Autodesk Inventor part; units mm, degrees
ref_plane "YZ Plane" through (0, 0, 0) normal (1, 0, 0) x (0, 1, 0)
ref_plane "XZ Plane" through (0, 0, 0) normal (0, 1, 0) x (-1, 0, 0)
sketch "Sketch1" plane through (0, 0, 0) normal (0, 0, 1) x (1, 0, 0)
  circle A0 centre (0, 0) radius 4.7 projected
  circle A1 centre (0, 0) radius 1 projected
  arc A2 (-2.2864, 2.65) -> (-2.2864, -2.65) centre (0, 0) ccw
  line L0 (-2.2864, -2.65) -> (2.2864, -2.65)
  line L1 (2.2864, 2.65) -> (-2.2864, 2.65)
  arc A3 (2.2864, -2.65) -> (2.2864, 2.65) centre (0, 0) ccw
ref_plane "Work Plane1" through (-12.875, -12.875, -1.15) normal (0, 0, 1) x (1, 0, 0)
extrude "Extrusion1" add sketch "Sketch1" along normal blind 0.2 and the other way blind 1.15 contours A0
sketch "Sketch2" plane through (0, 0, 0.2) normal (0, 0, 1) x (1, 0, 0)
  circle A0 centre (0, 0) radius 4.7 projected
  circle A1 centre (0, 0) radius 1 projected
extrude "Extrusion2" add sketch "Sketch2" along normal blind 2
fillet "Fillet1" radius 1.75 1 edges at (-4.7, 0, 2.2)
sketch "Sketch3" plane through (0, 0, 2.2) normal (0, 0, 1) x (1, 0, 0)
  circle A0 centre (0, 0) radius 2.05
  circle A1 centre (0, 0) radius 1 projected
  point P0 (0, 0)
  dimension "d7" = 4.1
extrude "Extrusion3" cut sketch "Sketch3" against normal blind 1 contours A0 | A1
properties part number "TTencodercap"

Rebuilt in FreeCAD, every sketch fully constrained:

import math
import FreeCAD as App
import Part
import Sketcher
from FreeCAD import Vector
Q = App.Units.Quantity


def edges_at(feature, points):
    """Names of the edges that pass closest to the given points."""
    edges = feature.Shape.Edges
    near = lambda p: min(range(len(edges)), key=lambda i: edges[i].distToShape(Part.Vertex(*p))[0])
    return sorted({f"Edge{near(p) + 1}" for p in points})

doc = App.newDocument("Part")
body = doc.addObject("PartDesign::Body", "Body")

sketch1 = body.newObject("Sketcher::SketchObject", "Sketch")
sketch1.AttachmentSupport = (doc.getObject("XY_Plane"), [""])
sketch1.MapMode = "FlatFace"
sketch1.addGeometry([
    Part.Circle(Vector(0, 0, 0), Vector(0, 0, 1), 4.7),
    Part.ArcOfCircle(Part.Circle(Vector(0, 0, 0), Vector(0, 0, 1), 3.5), math.radians(131), math.radians(229)),
    Part.LineSegment(Vector(-2.3, 2.6, 0), Vector(2.3, 2.6, 0)),
    Part.ArcOfCircle(Part.Circle(Vector(0, 0, 0), Vector(0, 0, 1), 3.5), math.radians(-49), math.radians(49)),
    Part.LineSegment(Vector(2.3, -2.6, 0), Vector(-2.3, -2.6, 0)),
], False)
sketch1.addConstraint([
    Sketcher.Constraint("Coincident", 1, 1, 2, 1),
    Sketcher.Constraint("Coincident", 2, 2, 3, 2),
    Sketcher.Constraint("Coincident", 3, 1, 4, 1),
    Sketcher.Constraint("Coincident", 4, 2, 1, 2),
    Sketcher.Constraint("Horizontal", 2),
    Sketcher.Constraint("Horizontal", 4),
    Sketcher.Constraint("Coincident", 0, 3, -1, 1),
    Sketcher.Constraint("Coincident", 1, 3, -1, 1),
    Sketcher.Constraint("Coincident", 3, 3, -1, 1),
    Sketcher.Constraint("Equal", 1, 3),
    Sketcher.Constraint("Vertical", 2, 2, 3, 1),
    Sketcher.Constraint("Diameter", 0, Q("9.4 mm")),
    Sketcher.Constraint("Radius", 1, Q("3.5 mm")),
    Sketcher.Constraint("DistanceY", 3, 1, 2, 2, Q("5.3 mm")),
])
pad1 = body.newObject("PartDesign::Pad", "Pad")
pad1.Profile = sketch1
pad1.Type = "TwoLengths"
pad1.Length = 0.2
pad1.Length2 = 1.15

sketch2 = body.newObject("Sketcher::SketchObject", "Sketch001")
sketch2.AttachmentSupport = (doc.getObject("XY_Plane"), [""])
sketch2.MapMode = "FlatFace"
sketch2.AttachmentOffset = App.Placement(Vector(0, 0, 0.2), App.Rotation())
sketch2.addGeometry([
    Part.Circle(Vector(0, 0, 0), Vector(0, 0, 1), 4.7),
    Part.Circle(Vector(0, 0, 0), Vector(0, 0, 1), 1),
], False)
sketch2.addConstraint([
    Sketcher.Constraint("Coincident", 0, 3, -1, 1),
    Sketcher.Constraint("Coincident", 1, 3, -1, 1),
    Sketcher.Constraint("Diameter", 1, Q("2 mm")),
    Sketcher.Constraint("Diameter", 0, Q("9.4 mm")),
])
pad2 = body.newObject("PartDesign::Pad", "Pad001")
pad2.Profile = sketch2
pad2.Length = 2
doc.recompute()

fillet = body.newObject("PartDesign::Fillet", "Fillet")
fillet.Base = (pad2, edges_at(pad2, [(-4.7, 0, 2.2)]))
fillet.Radius = 1.75

sketch3 = body.newObject("Sketcher::SketchObject", "Sketch002")
sketch3.AttachmentSupport = (doc.getObject("XY_Plane"), [""])
sketch3.MapMode = "FlatFace"
sketch3.AttachmentOffset = App.Placement(Vector(0, 0, 2.2), App.Rotation())
sketch3.addGeometry(Part.Circle(Vector(0, 0, 0), Vector(0, 0, 1), 2), False)
sketch3.addConstraint([
    Sketcher.Constraint("Coincident", 0, 3, -1, 1),
    Sketcher.Constraint("Diameter", 0, Q("4.1 mm")),
])
pocket1 = body.newObject("PartDesign::Pocket", "Pocket")
pocket1.Profile = sketch3
pocket1.Length = 1

doc.recompute()
